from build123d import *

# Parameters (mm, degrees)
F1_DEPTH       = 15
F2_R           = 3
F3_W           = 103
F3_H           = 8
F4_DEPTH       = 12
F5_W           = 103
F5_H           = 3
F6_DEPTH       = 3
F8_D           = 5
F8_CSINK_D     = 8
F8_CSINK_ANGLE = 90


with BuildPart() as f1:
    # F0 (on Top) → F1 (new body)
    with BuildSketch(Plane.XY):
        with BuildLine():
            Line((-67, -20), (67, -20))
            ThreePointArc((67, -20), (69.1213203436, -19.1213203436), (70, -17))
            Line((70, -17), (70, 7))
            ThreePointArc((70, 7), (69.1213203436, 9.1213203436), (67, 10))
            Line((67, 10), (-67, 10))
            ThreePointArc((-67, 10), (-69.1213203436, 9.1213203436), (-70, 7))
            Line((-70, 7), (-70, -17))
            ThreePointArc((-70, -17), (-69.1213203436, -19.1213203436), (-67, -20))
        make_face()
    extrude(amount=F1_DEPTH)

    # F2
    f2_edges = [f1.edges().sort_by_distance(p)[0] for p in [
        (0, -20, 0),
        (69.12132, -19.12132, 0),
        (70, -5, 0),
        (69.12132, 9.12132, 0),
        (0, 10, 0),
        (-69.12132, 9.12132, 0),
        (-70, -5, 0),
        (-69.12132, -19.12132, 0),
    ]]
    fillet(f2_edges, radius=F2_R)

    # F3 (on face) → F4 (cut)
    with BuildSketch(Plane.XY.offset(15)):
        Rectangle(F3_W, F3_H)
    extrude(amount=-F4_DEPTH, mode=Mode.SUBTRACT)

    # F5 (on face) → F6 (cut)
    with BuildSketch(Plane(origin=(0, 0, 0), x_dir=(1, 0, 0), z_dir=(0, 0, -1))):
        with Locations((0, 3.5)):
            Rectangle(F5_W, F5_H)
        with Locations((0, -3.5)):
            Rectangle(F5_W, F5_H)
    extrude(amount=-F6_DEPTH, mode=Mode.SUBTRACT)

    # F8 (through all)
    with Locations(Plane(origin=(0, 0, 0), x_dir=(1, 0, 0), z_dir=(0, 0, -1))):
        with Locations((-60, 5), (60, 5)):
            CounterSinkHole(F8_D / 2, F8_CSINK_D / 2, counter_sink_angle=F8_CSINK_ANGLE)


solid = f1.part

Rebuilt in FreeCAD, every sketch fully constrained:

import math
import FreeCAD as App
import Part
import Sketcher

V = App.Vector
Q = App.Units.Quantity


def edges_at(feature, points):
    """Names of the edges that pass closest to the given points."""
    edges = feature.Shape.Edges
    near = lambda p: min(range(len(edges)), key=lambda i: edges[i].distToShape(Part.Vertex(*p))[0])
    return sorted({f"Edge{near(p) + 1}" for p in points})


def add_polygon(sketch, points):
    """Adds a closed chain of lines whose ends are joined by coincident constraints."""
    first, n = sketch.GeometryCount, len(points)
    for a, b in zip(points, points[1:] + points[:1]):
        sketch.addGeometry(Part.LineSegment(App.Vector(*a, 0), App.Vector(*b, 0)), False)
    for i in range(n):
        sketch.addConstraint(Sketcher.Constraint("Coincident", first + i, 2, first + (i + 1) % n, 1))

doc = App.newDocument("Part")
params = doc.addObject("Spreadsheet::Sheet", "Params")
for row, (alias, value) in enumerate([
    ("sketch1_radius", "3 mm"),
    ("sketch1_width", "134 mm"),
    ("sketch1_height", "24 mm"),
    ("pad1_length", "15 mm"),
    ("fillet_radius", "3 mm"),
    ("sketch2_width", "103 mm"),
    ("sketch2_height", "8 mm"),
    ("pocket1_length", "12 mm"),
    ("sketch3_width", "103 mm"),
    ("sketch3_height", "3 mm"),
    ("pocket2_length", "3 mm"),
    ("sketch4_diameter", "5 mm"),
    ("hole_diameter", "5 mm"),
    ("hole_csink_diameter", "8 mm"),
], start=1):
    params.set(f"A{row}", alias)
    params.set(f"B{row}", "=" + value)
    params.setAlias(f"B{row}", alias)

body = doc.addObject("PartDesign::Body", "Body")

# Sketch on XY plane
sketch1 = body.newObject("Sketcher::SketchObject", "Sketch")
sketch1.AttachmentSupport = (doc.getObject("XY_Plane"), [""])
sketch1.MapMode = "FlatFace"
sketch1.addGeometry([
    Part.LineSegment(V(-67, -20, 0), V(67, -20, 0)),  # 0
    Part.ArcOfCircle(Part.Circle(V(67, -17, 0), V(0, 0, 1), 3), math.radians(-90), math.radians(0)),  # 1
    Part.LineSegment(V(70, -17, 0), V(70, 7, 0)),  # 2
    Part.ArcOfCircle(Part.Circle(V(67, 7, 0), V(0, 0, 1), 3), math.radians(0), math.radians(90)),  # 3
    Part.LineSegment(V(67, 10, 0), V(-67, 10, 0)),  # 4
    Part.ArcOfCircle(Part.Circle(V(-67, 7, 0), V(0, 0, 1), 3), math.radians(90), math.radians(180)),  # 5
    Part.LineSegment(V(-70, 7, 0), V(-70, -17, 0)),  # 6
    Part.ArcOfCircle(Part.Circle(V(-67, -17, 0), V(0, 0, 1), 3), math.radians(180), math.radians(270)),  # 7
], False)
sketch1.addConstraint([
    Sketcher.Constraint("Tangent", 0, 2, 1, 1),
    Sketcher.Constraint("Tangent", 1, 2, 2, 1),
    Sketcher.Constraint("Tangent", 2, 2, 3, 1),
    Sketcher.Constraint("Tangent", 3, 2, 4, 1),
    Sketcher.Constraint("Tangent", 4, 2, 5, 1),
    Sketcher.Constraint("Tangent", 5, 2, 6, 1),
    Sketcher.Constraint("Tangent", 6, 2, 7, 1),
    Sketcher.Constraint("Tangent", 7, 2, 0, 1),
    Sketcher.Constraint("Horizontal", 0),
    Sketcher.Constraint("Vertical", 2),
    Sketcher.Constraint("Horizontal", 4),
    Sketcher.Constraint("Vertical", 6),
    Sketcher.Constraint("Equal", 1, 3),
    Sketcher.Constraint("Equal", 3, 5),
    Sketcher.Constraint("Equal", 5, 7),
    Sketcher.Constraint("Radius", 1, Q("3 mm")),
    Sketcher.Constraint("DistanceX", 0, 1, 0, 2, Q("134 mm")),
    Sketcher.Constraint("DistanceY", 2, 1, 2, 2, Q("24 mm")),
    Sketcher.Constraint("DistanceX", -1, 1, 1, 3, Q("67 mm")),
    Sketcher.Constraint("DistanceY", 1, 3, -1, 1, Q("17 mm")),
])
sketch1.setExpression("Constraints[15]", "Params.sketch1_radius")
sketch1.setExpression("Constraints[16]", "Params.sketch1_width")
sketch1.setExpression("Constraints[17]", "Params.sketch1_height")
pad1 = body.newObject("PartDesign::Pad", "Pad")
pad1.Profile = sketch1
pad1.setExpression("Length", "Params.pad1_length")
doc.recompute()

fillet = body.newObject("PartDesign::Fillet", "Fillet")
fillet.Base = (pad1, edges_at(pad1, [
    (0, -20, 0),
    (69.121, -19.121, 0),
    (70, -5, 0),
    (69.121, 9.121, 0),
    (0, 10, 0),
    (-69.121, 9.121, 0),
    (-70, -5, 0),
    (-69.121, -19.121, 0),
]))
fillet.setExpression("Radius", "Params.fillet_radius")

# Sketch on XY plane
sketch2 = body.newObject("Sketcher::SketchObject", "Sketch001")
sketch2.AttachmentSupport = (doc.getObject("XY_Plane"), [""])
sketch2.MapMode = "FlatFace"
sketch2.AttachmentOffset = App.Placement(V(0, 0, 15), App.Rotation())
add_polygon(sketch2, [(-51.5, 4), (-51.5, -4), (51.5, -4), (51.5, 4)])  # lines 0-3
sketch2.addConstraint([
    Sketcher.Constraint("Vertical", 0),
    Sketcher.Constraint("Horizontal", 1),
    Sketcher.Constraint("Vertical", 2),
    Sketcher.Constraint("Horizontal", 3),
    Sketcher.Constraint("Symmetric", 0, 2, 2, 2, -1, 1),
    Sketcher.Constraint("DistanceX", 1, 1, 1, 2, Q("103 mm")),
    Sketcher.Constraint("DistanceY", 0, 2, 0, 1, Q("8 mm")),
])
sketch2.setExpression("Constraints[9]", "Params.sketch2_width")
sketch2.setExpression("Constraints[10]", "Params.sketch2_height")
pocket1 = body.newObject("PartDesign::Pocket", "Pocket")
pocket1.Profile = sketch2
pocket1.setExpression("Length", "Params.pocket1_length")

# Sketch on XY plane
sketch3 = body.newObject("Sketcher::SketchObject", "Sketch002")
sketch3.AttachmentSupport = (doc.getObject("XY_Plane"), [""])
sketch3.MapMode = "FlatFace"
add_polygon(sketch3, [(-51.5, -5), (-51.5, -2), (51.5, -2), (51.5, -5)])  # lines 0-3
add_polygon(sketch3, [(-51.5, 2), (-51.5, 5), (51.5, 5), (51.5, 2)])  # lines 4-7
sketch3.addConstraint([
    Sketcher.Constraint("Vertical", 0),
    Sketcher.Constraint("Horizontal", 1),
    Sketcher.Constraint("Vertical", 2),
    Sketcher.Constraint("Horizontal", 3),
    Sketcher.Constraint("Vertical", 4),
    Sketcher.Constraint("Horizontal", 5),
    Sketcher.Constraint("Vertical", 6),
    Sketcher.Constraint("Horizontal", 7),
    Sketcher.Constraint("Symmetric", 2, 2, 4, 2, -1, 1),
    Sketcher.Constraint("Symmetric", 0, 2, 6, 2, -1, 1),
    Sketcher.Constraint("Vertical", 3, 2, 4, 2),
    Sketcher.Constraint("DistanceX", 1, 1, 1, 2, Q("103 mm")),
    Sketcher.Constraint("DistanceY", 0, 1, 0, 2, Q("3 mm")),
    Sketcher.Constraint("DistanceY", 0, 2, -1, 1, Q("2 mm")),
])
sketch3.setExpression("Constraints[19]", "Params.sketch3_width")
sketch3.setExpression("Constraints[20]", "Params.sketch3_height")
pocket2 = body.newObject("PartDesign::Pocket", "Pocket001")
pocket2.Profile = sketch3
pocket2.setExpression("Length", "Params.pocket2_length")
pocket2.Reversed = True

# Sketch on XY plane
sketch4 = body.newObject("Sketcher::SketchObject", "Sketch003")
sketch4.AttachmentSupport = (doc.getObject("XY_Plane"), [""])
sketch4.MapMode = "FlatFace"
sketch4.addGeometry([
    Part.Circle(V(-60, -5, 0), V(0, 0, 1), 2.5),
    Part.Circle(V(60, -5, 0), V(0, 0, 1), 2.5),
], False)
sketch4.addConstraint([
    Sketcher.Constraint("Equal", 0, 1),
    Sketcher.Constraint("Symmetric", 0, 3, 1, 3, -2),
    Sketcher.Constraint("Diameter", 0, Q("5 mm")),
    Sketcher.Constraint("DistanceX", 0, 3, -1, 1, Q("60 mm")),
    Sketcher.Constraint("DistanceY", 0, 3, -1, 1, Q("5 mm")),
])
sketch4.setExpression("Constraints[2]", "Params.sketch4_diameter")
doc.recompute()
hole = body.newObject("PartDesign::Hole", "Hole")
hole.Profile = sketch4
hole.ThreadType = "None"
hole.setExpression("Diameter", "Params.hole_diameter")
hole.DepthType = "ThroughAll"
hole.HoleCutType = "Countersink"
hole.setExpression("HoleCutDiameter", "Params.hole_csink_diameter")
hole.HoleCutCountersinkAngle = 90
hole.Reversed = True

doc.recompute()
